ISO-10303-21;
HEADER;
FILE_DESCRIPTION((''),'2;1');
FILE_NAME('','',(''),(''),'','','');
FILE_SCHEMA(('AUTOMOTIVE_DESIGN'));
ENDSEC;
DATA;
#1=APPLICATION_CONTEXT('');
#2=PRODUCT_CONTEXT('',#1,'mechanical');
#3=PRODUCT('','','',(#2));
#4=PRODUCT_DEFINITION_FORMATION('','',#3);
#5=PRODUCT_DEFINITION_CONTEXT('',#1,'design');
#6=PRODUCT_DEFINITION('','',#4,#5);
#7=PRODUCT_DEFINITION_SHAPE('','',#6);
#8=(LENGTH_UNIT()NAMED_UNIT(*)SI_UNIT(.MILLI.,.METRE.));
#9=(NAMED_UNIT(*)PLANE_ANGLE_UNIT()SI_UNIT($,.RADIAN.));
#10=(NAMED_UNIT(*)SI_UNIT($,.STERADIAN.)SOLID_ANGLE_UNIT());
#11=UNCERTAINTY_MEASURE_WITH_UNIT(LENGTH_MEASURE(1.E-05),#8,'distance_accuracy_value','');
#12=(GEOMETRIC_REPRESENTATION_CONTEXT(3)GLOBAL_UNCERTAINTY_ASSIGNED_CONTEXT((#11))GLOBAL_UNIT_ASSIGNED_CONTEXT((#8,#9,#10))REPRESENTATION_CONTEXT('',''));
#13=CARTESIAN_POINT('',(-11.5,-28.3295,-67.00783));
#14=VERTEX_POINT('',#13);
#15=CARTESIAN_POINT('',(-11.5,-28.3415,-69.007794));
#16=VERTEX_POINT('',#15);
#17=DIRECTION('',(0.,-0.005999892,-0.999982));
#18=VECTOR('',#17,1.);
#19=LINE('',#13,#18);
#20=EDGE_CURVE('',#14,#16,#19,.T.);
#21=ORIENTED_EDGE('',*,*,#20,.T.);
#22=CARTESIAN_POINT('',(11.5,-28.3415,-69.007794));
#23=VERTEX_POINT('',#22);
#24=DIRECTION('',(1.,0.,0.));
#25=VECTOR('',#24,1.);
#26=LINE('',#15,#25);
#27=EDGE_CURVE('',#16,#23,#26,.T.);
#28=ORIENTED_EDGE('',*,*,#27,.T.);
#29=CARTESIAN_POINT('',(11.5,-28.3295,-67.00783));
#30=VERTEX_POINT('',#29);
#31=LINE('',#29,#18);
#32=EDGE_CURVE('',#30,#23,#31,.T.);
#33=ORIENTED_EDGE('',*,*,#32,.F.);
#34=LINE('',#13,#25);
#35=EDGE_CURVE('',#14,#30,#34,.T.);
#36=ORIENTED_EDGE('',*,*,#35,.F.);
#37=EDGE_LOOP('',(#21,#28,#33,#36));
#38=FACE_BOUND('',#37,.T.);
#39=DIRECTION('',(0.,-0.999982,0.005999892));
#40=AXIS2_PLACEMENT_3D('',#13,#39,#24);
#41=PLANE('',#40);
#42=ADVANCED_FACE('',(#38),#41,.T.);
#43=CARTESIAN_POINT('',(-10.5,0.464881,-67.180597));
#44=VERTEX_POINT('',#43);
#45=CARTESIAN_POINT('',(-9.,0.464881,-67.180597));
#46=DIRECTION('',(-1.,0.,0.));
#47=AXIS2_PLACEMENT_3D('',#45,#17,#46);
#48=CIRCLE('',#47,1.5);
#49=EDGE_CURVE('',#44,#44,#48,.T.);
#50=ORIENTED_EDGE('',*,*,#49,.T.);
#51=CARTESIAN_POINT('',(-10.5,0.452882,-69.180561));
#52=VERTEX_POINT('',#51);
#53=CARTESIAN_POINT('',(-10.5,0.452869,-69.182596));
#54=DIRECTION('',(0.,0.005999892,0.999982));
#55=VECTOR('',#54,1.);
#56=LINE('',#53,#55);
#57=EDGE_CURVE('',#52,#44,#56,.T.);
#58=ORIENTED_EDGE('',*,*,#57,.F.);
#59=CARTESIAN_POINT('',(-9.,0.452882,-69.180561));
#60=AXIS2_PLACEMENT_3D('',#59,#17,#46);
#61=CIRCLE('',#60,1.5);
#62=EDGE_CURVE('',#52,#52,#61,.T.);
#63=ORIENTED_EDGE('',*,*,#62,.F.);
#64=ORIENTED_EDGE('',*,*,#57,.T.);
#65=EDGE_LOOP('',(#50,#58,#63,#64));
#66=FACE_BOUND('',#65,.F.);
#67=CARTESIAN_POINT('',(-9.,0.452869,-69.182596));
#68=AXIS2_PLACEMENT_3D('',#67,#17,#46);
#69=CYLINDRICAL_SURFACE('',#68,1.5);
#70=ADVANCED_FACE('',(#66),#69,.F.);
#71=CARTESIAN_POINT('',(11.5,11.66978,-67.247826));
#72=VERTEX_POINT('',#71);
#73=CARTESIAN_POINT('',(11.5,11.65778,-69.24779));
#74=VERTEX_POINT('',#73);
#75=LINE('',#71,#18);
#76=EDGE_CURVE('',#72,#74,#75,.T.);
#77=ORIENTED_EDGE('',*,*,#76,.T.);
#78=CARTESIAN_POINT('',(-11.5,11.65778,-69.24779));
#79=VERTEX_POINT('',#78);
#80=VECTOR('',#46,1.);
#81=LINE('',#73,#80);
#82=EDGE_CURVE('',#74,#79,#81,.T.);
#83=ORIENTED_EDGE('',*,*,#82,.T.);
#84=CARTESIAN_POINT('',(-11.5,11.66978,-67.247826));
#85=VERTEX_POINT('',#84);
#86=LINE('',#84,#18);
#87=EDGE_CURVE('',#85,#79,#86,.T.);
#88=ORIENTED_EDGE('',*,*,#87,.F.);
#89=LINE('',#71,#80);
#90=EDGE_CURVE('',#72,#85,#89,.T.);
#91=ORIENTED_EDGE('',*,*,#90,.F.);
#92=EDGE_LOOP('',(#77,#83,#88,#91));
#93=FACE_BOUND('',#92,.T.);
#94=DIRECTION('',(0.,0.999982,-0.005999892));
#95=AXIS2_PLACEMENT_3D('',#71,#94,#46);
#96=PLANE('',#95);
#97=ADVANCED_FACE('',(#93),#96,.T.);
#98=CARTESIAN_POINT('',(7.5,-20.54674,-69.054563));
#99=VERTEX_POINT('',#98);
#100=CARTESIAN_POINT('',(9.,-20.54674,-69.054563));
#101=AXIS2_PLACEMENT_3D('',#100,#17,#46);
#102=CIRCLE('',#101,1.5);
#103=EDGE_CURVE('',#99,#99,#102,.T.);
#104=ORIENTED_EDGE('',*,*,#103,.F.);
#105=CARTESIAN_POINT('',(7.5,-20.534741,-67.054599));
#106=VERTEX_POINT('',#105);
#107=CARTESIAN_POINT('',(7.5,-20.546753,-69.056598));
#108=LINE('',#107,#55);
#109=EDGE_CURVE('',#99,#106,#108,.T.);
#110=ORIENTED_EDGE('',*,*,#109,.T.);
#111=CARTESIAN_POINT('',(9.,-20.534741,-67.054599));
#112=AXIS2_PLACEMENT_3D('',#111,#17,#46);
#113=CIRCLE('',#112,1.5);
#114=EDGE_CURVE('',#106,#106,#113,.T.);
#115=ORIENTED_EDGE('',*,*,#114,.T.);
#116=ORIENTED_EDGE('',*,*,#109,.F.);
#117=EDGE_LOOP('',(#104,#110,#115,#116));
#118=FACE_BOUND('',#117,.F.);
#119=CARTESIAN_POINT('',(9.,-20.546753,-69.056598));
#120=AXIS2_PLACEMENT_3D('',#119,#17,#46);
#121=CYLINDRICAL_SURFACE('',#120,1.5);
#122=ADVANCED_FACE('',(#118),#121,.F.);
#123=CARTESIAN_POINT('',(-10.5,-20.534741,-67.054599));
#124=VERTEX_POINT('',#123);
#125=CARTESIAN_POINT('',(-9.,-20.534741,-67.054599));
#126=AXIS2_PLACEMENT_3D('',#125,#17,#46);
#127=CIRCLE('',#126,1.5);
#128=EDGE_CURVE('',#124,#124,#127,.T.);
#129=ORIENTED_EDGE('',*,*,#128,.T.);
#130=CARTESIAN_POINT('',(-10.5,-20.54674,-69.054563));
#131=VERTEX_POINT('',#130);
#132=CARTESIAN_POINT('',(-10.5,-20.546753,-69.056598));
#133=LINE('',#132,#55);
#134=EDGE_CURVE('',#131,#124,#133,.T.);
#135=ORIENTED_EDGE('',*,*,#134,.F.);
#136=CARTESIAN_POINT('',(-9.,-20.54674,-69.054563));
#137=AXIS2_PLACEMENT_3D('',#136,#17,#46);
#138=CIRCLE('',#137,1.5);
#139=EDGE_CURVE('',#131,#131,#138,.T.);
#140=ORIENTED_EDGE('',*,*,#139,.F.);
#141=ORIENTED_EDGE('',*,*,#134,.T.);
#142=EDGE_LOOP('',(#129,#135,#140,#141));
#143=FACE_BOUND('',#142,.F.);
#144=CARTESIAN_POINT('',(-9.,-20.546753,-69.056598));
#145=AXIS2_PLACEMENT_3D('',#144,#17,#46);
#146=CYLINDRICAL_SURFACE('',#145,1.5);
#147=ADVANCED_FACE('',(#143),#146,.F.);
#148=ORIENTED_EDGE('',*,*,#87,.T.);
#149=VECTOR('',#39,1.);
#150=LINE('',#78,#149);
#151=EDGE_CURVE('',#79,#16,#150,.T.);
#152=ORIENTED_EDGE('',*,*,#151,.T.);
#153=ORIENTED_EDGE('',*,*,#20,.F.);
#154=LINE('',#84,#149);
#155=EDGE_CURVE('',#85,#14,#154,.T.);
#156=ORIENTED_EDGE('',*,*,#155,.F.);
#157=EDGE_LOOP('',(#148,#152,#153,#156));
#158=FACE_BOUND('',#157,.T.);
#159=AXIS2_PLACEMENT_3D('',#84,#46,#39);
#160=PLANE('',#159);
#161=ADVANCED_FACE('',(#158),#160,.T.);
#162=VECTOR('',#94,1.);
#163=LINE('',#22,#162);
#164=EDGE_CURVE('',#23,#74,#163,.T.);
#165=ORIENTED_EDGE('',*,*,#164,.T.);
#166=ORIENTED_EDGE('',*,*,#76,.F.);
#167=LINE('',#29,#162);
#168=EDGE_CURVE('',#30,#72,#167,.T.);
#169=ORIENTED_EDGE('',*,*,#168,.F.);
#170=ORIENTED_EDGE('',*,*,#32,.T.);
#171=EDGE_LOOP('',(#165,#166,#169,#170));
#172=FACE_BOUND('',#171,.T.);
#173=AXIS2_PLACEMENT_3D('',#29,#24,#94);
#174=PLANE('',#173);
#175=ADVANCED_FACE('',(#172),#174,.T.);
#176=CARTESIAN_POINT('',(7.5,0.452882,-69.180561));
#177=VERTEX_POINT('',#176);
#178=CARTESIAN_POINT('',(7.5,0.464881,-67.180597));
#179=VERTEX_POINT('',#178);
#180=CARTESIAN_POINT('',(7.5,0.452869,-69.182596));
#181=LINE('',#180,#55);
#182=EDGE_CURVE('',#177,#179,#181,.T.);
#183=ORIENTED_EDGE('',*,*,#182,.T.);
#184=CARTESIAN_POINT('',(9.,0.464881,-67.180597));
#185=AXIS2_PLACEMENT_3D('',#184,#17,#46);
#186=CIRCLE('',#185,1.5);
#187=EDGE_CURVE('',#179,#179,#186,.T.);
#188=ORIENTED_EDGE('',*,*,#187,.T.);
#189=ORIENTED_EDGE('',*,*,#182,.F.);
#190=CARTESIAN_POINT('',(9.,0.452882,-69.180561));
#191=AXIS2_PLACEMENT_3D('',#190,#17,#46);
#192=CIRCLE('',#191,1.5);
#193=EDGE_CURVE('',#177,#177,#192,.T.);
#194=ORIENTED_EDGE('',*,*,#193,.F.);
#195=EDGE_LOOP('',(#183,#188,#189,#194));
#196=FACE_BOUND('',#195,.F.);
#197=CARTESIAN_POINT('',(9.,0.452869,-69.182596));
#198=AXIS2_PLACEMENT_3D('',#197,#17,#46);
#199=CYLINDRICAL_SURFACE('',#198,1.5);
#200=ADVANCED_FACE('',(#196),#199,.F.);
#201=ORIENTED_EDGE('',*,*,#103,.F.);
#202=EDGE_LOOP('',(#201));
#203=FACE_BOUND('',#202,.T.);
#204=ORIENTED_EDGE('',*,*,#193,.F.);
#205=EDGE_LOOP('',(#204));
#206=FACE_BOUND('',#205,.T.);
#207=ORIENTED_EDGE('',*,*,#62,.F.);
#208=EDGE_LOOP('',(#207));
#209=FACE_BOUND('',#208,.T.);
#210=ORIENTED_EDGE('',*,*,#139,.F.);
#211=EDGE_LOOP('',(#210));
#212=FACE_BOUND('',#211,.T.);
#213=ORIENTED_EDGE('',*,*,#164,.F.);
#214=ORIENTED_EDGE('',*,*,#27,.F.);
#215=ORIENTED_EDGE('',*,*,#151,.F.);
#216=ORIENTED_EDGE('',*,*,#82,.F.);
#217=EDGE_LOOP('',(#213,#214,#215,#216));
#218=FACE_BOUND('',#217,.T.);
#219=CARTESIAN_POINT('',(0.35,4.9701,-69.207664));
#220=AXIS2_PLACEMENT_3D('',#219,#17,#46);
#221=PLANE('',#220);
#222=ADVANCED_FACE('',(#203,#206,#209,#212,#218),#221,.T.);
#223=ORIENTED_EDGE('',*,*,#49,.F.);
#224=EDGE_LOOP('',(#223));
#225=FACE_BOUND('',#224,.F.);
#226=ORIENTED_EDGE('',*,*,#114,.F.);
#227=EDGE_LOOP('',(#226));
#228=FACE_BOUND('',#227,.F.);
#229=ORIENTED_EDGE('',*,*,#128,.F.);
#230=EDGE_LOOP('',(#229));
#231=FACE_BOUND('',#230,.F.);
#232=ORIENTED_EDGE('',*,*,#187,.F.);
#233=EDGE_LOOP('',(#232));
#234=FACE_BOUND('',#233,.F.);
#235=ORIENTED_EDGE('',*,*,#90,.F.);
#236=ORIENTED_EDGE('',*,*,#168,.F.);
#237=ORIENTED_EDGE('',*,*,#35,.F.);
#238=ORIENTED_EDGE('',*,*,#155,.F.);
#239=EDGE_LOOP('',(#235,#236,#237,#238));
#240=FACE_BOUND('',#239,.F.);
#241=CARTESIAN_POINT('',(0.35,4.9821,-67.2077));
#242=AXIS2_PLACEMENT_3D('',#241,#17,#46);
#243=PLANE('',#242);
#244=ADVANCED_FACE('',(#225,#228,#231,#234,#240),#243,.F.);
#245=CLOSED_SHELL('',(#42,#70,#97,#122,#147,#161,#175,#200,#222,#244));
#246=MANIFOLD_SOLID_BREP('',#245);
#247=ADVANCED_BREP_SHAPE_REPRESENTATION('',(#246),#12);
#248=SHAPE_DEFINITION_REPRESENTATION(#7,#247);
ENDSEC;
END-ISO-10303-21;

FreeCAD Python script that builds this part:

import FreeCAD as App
import Part
import Sketcher
from FreeCAD import Vector
Q = App.Units.Quantity


def add_polygon(sketch, points):
    """Adds a closed chain of lines whose ends are joined by coincident constraints."""
    first, n = sketch.GeometryCount, len(points)
    for a, b in zip(points, points[1:] + points[:1]):
        sketch.addGeometry(Part.LineSegment(App.Vector(*a, 0), App.Vector(*b, 0)), False)
    for i in range(n):
        sketch.addConstraint(Sketcher.Constraint("Coincident", first + i, 2, first + (i + 1) % n, 1))

doc = App.newDocument("Part")
body = doc.addObject("PartDesign::Body", "Body")

# Sketch on an angled plane
sketch1 = body.newObject("Sketcher::SketchObject", "Sketch")
sketch1.Placement = App.Placement(Vector(0.35, 4.9821, -67.2077), App.Rotation(Vector(-1, 0, 0), Vector(0, 0.999982, -0.005999892), Vector(0, -0.005999892, -0.999982), "ZXY"))
add_polygon(sketch1, [(11.85, 6.6878), (-11.15, 6.6878), (-11.15, -33.3122), (11.85, -33.3122)])  # lines 0-3
sketch1.addConstraint([
    Sketcher.Constraint("Horizontal", 0),
    Sketcher.Constraint("Vertical", 1),
    Sketcher.Constraint("Horizontal", 2),
    Sketcher.Constraint("Vertical", 3),
    Sketcher.Constraint("DistanceX", 0, 2, 0, 1, Q("23 mm")),
    Sketcher.Constraint("DistanceY", 1, 2, 1, 1, Q("40 mm")),
    Sketcher.Constraint("DistanceX", 0, 2, -1, 1, Q("11.15 mm")),
    Sketcher.Constraint("DistanceY", -1, 1, 0, 2, Q("6.6878 mm")),
])
pad1 = body.newObject("PartDesign::Pad", "Pad")
pad1.Profile = sketch1
pad1.Length = 2

# Sketch on an angled plane
sketch2 = body.newObject("Sketcher::SketchObject", "Sketch001")
sketch2.Placement = App.Placement(Vector(0.35, 4.9702, -69.2077), App.Rotation(Vector(-1, 0, 0), Vector(0, 0.999982, -0.005999892), Vector(0, -0.005999892, -0.999982), "ZXY"))
sketch2.addGeometry([
    Part.Circle(Vector(9.35, -4.5174, 0), Vector(0, 0, 1), 1.5),
    Part.Circle(Vector(-8.65, -4.5174, 0), Vector(0, 0, 1), 1.5),
    Part.Circle(Vector(-8.65, -25.5174, 0), Vector(0, 0, 1), 1.5),
    Part.Circle(Vector(9.35, -25.5174, 0), Vector(0, 0, 1), 1.5),
], False)
sketch2.addConstraint([
    Sketcher.Constraint("Equal", 0, 1),
    Sketcher.Constraint("Equal", 1, 2),
    Sketcher.Constraint("Equal", 2, 3),
    Sketcher.Constraint("Horizontal", 0, 3, 1, 3),
    Sketcher.Constraint("Horizontal", 2, 3, 3, 3),
    Sketcher.Constraint("Vertical", 1, 3, 2, 3),
    Sketcher.Constraint("Vertical", 0, 3, 3, 3),
    Sketcher.Constraint("Diameter", 0, Q("3 mm")),
    Sketcher.Constraint("DistanceX", 1, 3, 0, 3, Q("18 mm")),
    Sketcher.Constraint("DistanceY", 2, 3, 1, 3, Q("21 mm")),
    Sketcher.Constraint("DistanceX", -1, 1, 0, 3, Q("9.35 mm")),
    Sketcher.Constraint("DistanceY", 0, 3, -1, 1, Q("4.5174 mm")),
])
pocket1 = body.newObject("PartDesign::Pocket", "Pocket")
pocket1.Profile = sketch2
pocket1.Length = 2

doc.recompute()
